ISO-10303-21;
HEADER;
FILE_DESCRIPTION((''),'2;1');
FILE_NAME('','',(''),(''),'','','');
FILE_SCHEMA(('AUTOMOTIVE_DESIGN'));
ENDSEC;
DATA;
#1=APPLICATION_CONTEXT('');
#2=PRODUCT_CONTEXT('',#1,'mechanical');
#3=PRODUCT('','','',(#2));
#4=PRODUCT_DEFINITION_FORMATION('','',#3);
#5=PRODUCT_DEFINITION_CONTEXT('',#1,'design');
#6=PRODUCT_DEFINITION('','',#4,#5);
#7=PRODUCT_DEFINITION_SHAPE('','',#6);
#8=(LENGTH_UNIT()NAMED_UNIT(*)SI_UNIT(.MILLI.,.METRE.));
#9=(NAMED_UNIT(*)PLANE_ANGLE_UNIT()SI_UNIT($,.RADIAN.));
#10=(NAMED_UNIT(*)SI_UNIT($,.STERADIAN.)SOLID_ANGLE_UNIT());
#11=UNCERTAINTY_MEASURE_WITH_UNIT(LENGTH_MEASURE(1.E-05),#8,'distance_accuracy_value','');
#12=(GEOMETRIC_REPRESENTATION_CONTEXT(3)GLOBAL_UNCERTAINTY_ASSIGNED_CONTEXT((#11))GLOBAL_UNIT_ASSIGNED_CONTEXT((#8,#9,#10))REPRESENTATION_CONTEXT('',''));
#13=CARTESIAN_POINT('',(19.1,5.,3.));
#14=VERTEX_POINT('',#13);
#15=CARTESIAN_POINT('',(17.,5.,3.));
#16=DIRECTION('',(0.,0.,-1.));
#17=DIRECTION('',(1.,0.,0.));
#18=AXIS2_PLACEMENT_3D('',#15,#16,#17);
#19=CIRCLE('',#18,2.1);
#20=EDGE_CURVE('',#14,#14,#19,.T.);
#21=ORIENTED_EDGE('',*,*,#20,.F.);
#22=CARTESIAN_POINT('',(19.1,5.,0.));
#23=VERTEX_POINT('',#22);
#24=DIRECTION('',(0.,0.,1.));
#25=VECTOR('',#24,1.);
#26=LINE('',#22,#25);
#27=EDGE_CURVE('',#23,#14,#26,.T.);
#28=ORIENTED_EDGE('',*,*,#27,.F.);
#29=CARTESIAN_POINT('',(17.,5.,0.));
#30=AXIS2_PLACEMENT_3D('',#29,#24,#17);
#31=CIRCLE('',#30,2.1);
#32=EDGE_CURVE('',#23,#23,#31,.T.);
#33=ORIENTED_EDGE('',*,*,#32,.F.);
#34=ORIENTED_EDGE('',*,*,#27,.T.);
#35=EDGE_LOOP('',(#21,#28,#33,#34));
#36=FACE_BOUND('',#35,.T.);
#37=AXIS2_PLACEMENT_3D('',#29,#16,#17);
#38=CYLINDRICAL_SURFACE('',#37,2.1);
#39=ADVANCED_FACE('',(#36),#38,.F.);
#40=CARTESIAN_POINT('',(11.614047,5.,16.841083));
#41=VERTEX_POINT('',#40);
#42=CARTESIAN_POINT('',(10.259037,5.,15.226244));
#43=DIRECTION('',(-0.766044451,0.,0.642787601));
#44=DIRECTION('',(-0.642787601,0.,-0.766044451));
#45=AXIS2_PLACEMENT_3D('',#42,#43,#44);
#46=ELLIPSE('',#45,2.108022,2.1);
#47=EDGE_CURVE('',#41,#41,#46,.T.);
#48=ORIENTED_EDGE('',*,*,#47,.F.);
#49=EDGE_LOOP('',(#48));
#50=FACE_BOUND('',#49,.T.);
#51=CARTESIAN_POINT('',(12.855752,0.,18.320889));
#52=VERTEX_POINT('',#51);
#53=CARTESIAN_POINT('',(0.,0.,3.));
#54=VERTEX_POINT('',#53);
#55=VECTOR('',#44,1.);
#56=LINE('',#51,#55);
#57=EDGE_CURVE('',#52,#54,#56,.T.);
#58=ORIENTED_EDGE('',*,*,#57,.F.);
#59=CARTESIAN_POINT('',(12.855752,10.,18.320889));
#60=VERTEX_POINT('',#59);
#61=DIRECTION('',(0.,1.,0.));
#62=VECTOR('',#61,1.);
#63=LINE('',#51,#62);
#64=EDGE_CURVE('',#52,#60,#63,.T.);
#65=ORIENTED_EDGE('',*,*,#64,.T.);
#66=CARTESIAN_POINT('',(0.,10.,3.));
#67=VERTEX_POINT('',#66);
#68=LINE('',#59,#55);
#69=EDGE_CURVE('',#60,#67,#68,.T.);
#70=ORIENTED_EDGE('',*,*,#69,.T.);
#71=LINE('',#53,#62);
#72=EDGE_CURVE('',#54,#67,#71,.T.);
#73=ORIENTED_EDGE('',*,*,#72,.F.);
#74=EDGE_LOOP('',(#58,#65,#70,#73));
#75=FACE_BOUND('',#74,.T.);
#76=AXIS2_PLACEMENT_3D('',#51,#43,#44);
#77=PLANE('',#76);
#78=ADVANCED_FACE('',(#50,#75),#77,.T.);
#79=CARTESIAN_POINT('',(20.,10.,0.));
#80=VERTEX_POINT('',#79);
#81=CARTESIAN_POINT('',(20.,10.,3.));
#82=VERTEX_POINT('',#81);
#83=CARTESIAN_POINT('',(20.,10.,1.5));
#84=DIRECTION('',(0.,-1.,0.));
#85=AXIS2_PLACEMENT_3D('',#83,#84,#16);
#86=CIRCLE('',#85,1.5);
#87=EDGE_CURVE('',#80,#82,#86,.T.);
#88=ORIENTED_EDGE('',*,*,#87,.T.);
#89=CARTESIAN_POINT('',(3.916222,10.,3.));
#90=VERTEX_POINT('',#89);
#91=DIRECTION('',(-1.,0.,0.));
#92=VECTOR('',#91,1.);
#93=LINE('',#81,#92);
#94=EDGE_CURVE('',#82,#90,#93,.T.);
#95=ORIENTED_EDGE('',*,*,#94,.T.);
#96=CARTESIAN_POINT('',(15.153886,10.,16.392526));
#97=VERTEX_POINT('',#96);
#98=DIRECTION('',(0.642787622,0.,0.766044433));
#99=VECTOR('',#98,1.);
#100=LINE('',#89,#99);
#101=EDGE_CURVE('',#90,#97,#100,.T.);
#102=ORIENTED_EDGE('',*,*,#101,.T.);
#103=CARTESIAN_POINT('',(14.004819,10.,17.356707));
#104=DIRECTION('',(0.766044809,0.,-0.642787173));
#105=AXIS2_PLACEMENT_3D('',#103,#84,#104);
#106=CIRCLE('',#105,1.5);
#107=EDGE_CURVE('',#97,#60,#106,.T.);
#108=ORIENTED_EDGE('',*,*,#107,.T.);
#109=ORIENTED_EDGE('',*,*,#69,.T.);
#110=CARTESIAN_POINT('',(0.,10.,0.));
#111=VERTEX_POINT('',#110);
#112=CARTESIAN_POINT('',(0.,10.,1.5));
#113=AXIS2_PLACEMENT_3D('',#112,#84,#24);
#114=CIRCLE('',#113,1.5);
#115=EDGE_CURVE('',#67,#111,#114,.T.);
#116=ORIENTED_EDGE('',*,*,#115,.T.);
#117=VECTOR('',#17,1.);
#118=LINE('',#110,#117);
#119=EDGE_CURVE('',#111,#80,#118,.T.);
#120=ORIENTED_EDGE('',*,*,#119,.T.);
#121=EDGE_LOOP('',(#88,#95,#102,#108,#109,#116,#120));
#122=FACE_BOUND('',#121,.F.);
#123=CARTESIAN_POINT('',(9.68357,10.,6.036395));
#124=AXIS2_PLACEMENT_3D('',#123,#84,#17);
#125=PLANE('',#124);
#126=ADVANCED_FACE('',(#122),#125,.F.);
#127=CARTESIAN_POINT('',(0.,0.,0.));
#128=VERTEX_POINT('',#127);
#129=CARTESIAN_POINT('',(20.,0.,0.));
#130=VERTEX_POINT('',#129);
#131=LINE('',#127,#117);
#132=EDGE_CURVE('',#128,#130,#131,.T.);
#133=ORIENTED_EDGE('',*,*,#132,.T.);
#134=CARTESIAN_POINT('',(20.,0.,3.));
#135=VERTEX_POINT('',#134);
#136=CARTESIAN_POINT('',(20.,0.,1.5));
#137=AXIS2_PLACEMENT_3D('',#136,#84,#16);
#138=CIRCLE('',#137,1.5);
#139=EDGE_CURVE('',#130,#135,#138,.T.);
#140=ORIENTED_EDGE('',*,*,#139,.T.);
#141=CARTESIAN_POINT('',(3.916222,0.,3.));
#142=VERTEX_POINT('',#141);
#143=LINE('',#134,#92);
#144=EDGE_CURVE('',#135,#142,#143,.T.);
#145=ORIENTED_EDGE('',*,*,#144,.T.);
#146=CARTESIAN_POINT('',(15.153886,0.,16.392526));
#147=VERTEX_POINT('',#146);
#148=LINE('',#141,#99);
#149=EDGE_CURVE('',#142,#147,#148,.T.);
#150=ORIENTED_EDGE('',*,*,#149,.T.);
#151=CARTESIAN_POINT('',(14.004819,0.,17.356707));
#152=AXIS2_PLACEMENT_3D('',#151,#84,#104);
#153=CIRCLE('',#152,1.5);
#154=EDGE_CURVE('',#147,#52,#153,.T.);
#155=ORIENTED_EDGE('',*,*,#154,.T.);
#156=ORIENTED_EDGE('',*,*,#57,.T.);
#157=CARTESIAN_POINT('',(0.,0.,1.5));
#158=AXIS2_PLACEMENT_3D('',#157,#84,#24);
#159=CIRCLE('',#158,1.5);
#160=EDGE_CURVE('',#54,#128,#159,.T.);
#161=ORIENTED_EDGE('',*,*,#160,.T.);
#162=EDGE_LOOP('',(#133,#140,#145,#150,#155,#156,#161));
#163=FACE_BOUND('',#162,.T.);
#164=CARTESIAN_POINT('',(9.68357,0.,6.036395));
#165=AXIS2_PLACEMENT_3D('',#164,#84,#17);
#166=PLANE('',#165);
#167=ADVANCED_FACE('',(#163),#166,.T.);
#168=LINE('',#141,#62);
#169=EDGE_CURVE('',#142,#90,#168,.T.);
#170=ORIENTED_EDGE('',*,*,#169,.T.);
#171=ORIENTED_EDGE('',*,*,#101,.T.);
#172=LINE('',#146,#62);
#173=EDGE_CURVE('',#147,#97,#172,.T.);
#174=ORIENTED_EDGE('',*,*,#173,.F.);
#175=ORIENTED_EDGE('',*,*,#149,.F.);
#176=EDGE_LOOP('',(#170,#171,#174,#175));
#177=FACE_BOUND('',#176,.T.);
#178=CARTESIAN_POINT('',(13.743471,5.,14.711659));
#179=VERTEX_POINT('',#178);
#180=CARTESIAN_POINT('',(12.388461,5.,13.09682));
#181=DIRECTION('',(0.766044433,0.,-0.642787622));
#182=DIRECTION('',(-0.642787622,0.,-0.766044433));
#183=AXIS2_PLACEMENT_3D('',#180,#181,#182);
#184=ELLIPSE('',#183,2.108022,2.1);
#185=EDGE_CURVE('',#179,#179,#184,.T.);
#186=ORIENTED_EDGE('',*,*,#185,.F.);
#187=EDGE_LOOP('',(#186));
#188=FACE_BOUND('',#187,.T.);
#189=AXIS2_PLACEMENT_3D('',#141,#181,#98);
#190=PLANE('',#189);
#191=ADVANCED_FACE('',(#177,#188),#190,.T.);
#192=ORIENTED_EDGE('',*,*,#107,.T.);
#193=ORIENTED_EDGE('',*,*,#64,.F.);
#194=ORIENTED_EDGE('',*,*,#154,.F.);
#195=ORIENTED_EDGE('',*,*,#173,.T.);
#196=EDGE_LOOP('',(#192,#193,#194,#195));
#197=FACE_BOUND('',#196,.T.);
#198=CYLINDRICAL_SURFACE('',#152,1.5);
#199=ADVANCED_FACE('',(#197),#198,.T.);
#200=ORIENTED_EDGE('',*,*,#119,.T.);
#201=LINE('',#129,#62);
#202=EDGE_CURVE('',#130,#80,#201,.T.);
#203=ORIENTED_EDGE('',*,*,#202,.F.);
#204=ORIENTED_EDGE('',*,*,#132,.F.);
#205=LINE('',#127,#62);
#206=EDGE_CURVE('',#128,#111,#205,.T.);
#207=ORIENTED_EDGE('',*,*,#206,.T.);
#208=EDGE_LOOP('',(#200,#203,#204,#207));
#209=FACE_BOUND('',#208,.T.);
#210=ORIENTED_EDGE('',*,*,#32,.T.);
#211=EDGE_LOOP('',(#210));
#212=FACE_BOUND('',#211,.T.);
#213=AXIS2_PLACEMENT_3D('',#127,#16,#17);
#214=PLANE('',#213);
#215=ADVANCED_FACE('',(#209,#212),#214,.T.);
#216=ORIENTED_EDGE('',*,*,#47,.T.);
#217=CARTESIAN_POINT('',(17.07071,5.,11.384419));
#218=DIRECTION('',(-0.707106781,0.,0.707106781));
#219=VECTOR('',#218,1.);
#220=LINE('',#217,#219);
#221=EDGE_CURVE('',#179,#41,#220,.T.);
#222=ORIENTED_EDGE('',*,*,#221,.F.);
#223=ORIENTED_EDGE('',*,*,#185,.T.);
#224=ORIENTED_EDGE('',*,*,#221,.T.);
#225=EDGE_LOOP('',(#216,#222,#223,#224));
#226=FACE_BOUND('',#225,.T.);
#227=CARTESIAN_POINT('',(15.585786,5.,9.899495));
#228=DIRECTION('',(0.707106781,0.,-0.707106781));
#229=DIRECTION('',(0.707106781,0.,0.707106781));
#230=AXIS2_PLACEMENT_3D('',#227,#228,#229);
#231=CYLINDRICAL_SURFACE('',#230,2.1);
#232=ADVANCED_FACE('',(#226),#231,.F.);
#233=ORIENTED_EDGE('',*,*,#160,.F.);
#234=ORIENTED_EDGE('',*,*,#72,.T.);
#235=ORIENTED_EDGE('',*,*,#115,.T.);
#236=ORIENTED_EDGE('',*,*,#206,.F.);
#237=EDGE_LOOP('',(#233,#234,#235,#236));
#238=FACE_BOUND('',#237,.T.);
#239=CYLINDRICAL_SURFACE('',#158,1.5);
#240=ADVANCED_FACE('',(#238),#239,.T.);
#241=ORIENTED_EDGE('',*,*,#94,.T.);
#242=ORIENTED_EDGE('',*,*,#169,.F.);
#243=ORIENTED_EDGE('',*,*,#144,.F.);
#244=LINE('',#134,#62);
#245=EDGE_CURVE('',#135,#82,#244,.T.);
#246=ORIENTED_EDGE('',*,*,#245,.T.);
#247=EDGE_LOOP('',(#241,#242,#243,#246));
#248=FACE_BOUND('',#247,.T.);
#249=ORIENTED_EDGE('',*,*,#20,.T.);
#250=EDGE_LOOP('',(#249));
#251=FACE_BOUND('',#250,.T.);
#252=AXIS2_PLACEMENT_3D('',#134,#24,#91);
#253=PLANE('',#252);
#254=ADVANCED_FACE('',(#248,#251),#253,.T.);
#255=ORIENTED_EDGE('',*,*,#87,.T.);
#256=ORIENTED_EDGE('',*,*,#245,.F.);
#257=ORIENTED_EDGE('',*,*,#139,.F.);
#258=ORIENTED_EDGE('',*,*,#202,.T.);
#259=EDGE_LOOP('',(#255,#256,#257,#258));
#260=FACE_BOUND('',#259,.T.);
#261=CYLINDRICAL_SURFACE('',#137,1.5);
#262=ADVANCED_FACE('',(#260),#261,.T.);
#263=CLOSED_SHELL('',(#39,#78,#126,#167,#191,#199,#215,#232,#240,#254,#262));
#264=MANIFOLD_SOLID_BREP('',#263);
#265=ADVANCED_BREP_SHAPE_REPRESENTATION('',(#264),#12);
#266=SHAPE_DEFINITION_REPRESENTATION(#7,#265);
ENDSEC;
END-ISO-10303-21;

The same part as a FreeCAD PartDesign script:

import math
import FreeCAD as App
import Part
import Sketcher
Q = App.Units.Quantity

doc = App.newDocument("Part")
body = doc.addObject("PartDesign::Body", "Body")

# Sketch on XY plane
sketch1 = body.newObject("Sketcher::SketchObject", "Sketch")
sketch1.AttachmentSupport = (doc.getObject("XY_Plane"), [""])
sketch1.MapMode = "FlatFace"
sketch1.addGeometry(Part.Circle(App.Vector(0, 0, 0), App.Vector(0, 0, 1), 2.1), False)
sketch1.addConstraint([
    Sketcher.Constraint("Coincident", 0, 3, -1, 1),
    Sketcher.Constraint("Diameter", 0, 4.2),
])
pad1 = body.newObject("PartDesign::Pad", "Pad")
pad1.Profile = sketch1
pad1.Length = 10
body2 = doc.addObject("PartDesign::Body", "Body001")
doc.recompute()

body.Placement = App.Placement(App.Vector(15.585786, 5, 9.899495), App.Rotation(App.Vector(0, -1, 0), 45))
boolean = body2.newObject("PartDesign::Boolean", "Boolean")
boolean.Type = "Fuse"
boolean.addObjects([body])
body3 = doc.addObject("PartDesign::Body", "Body002")

# Sketch on XY plane
sketch2 = body3.newObject("Sketcher::SketchObject", "Sketch001")
sketch2.AttachmentSupport = (doc.getObject("XY_Plane002"), [""])
sketch2.MapMode = "FlatFace"
sketch2.addGeometry(Part.Circle(App.Vector(17, 5, 0), App.Vector(0, 0, 1), 2.1), False)
sketch2.addConstraint([
    Sketcher.Constraint("Diameter", 0, 4.2),
    Sketcher.Constraint("DistanceX", -1, 1, 0, 3, 17.0),
    Sketcher.Constraint("DistanceY", -1, 1, 0, 3, 5.0),
])
pad2 = body3.newObject("PartDesign::Pad", "Pad001")
pad2.Profile = sketch2
pad2.Length = 10
doc.recompute()

boolean2 = body3.newObject("PartDesign::Boolean", "Boolean001")
boolean2.Type = "Fuse"
boolean2.addObjects([body2])
body4 = doc.addObject("PartDesign::Body", "Body003")

# Sketch on XZ plane
sketch3 = body4.newObject("Sketcher::SketchObject", "Sketch002")
sketch3.AttachmentSupport = (doc.getObject("XZ_Plane003"), [""])
sketch3.MapMode = "FlatFace"
sketch3.addGeometry([
    Part.LineSegment(App.Vector(12.855752, 18.320889, 0), App.Vector(0, 3, 0)),  # 0
    Part.ArcOfCircle(Part.Circle(App.Vector(0, 1.5, 0), App.Vector(0, 0, 1), 1.5), math.radians(90), math.radians(270)),  # 1
    Part.LineSegment(App.Vector(0, 0, 0), App.Vector(20, 0, 0)),  # 2
    Part.ArcOfCircle(Part.Circle(App.Vector(20, 1.5, 0), App.Vector(0, 0, 1), 1.5), math.radians(-90), math.radians(90)),  # 3
    Part.LineSegment(App.Vector(20, 3, 0), App.Vector(3.916222, 3, 0)),  # 4
    Part.LineSegment(App.Vector(3.916222, 3, 0), App.Vector(15.153886, 16.392526, 0)),  # 5
    Part.ArcOfCircle(Part.Circle(App.Vector(14.004819, 17.356707, 0), App.Vector(0, 0, 1), 1.5), math.radians(-39.999967), math.radians(139.999979)),  # 6
], False)
sketch3.addConstraint([
    Sketcher.Constraint("Coincident", 0, 2, 1, 1),
    Sketcher.Constraint("Tangent", 1, 2, 2, 1),
    Sketcher.Constraint("Tangent", 2, 2, 3, 1),
    Sketcher.Constraint("Tangent", 3, 2, 4, 1),
    Sketcher.Constraint("Coincident", 4, 2, 5, 1),
    Sketcher.Constraint("Tangent", 5, 2, 6, 1),
    Sketcher.Constraint("Tangent", 6, 2, 0, 1),
    Sketcher.Constraint("Horizontal", 2),
    Sketcher.Constraint("Horizontal", 4),
    Sketcher.Constraint("Coincident", 1, 2, -1, 1),
    Sketcher.Constraint("Equal", 1, 3),
    Sketcher.Constraint("Equal", 3, 6),
    Sketcher.Constraint("PointOnObject", 0, 2, -2),
    Sketcher.Constraint("Parallel", 0, 5),
    Sketcher.Constraint("Radius", 1, 1.5),
    Sketcher.Constraint("DistanceX", 2, 1, 2, 2, 20.0),
    Sketcher.Constraint("Angle", 0, Q("-129.999999 deg")),
    Sketcher.Constraint("Distance", 0, 20.0),
])
pad3 = body4.newObject("PartDesign::Pad", "Pad002")
pad3.Profile = sketch3
pad3.Length = 10
pad3.Reversed = True
doc.recompute()

boolean3 = body4.newObject("PartDesign::Boolean", "Boolean002")
boolean3.Type = "Cut"
boolean3.addObjects([body3])

doc.recompute()
